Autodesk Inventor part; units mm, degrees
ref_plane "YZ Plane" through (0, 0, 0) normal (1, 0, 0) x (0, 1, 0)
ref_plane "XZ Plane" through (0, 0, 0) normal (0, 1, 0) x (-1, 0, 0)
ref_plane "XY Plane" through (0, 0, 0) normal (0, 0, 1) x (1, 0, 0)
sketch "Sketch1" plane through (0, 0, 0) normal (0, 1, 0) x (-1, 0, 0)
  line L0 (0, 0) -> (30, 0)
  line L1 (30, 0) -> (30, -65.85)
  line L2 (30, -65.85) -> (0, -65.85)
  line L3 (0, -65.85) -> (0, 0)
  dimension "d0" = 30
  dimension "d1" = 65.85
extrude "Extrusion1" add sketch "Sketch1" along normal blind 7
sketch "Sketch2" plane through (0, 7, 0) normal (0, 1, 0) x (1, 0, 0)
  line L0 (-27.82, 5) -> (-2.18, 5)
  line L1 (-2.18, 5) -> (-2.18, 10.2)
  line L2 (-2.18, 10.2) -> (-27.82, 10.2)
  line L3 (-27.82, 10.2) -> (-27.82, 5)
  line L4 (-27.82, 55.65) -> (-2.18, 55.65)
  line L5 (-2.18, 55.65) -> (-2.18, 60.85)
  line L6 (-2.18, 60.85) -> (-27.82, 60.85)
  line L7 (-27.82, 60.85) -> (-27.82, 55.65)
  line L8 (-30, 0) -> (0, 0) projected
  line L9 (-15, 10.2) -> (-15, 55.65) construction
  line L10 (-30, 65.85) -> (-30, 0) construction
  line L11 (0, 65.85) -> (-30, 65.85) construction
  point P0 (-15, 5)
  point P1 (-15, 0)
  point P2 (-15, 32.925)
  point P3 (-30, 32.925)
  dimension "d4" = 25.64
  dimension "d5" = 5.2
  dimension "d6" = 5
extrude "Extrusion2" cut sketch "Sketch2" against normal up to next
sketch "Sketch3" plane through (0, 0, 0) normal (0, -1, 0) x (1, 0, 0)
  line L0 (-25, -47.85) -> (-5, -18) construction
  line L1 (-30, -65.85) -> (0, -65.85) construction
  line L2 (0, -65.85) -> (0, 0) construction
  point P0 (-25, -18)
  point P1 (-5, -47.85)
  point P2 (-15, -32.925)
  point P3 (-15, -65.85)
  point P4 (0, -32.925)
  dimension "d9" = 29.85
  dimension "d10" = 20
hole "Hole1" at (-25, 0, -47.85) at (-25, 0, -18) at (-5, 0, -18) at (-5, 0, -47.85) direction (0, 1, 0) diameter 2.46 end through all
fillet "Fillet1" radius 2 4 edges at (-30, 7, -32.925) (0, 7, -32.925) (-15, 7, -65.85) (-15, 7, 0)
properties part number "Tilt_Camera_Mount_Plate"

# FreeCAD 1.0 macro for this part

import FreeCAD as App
import Part
import Sketcher

V = App.Vector
Q = App.Units.Quantity


def edges_at(feature, points):
    """Names of the edges that pass closest to the given points."""
    edges = feature.Shape.Edges
    near = lambda p: min(range(len(edges)), key=lambda i: edges[i].distToShape(Part.Vertex(*p))[0])
    return sorted({f"Edge{near(p) + 1}" for p in points})

doc = App.newDocument("Part")
params = doc.addObject("Spreadsheet::Sheet", "Params")
for row, (alias, value) in enumerate([
    ("sketch1_width", "30 mm"),
    ("sketch1_height", "65.85 mm"),
    ("pad1_length", "7 mm"),
    ("sketch2_height", "5.2 mm"),
    ("sketch2_width", "25.64 mm"),
    ("sketch3_diameter", "2.46 mm"),
    ("hole_diameter", "2.46 mm"),
    ("fillet_radius", "2 mm"),
], start=1):
    params.set(f"A{row}", alias)
    params.set(f"B{row}", "=" + value)
    params.setAlias(f"B{row}", alias)

body = doc.addObject("PartDesign::Body", "Body")

# Sketch on XZ plane
sketch1 = body.newObject("Sketcher::SketchObject", "Sketch")
sketch1.AttachmentSupport = (doc.getObject("XZ_Plane"), [""])
sketch1.MapMode = "FlatFace"
sketch1.addGeometry(Part.LineSegment(V(-30, 0, 0), V(0, 0, 0)), False)
sketch1.addGeometry(Part.LineSegment(V(0, 0, 0), V(0, -66, 0)), False)
sketch1.addGeometry(Part.LineSegment(V(0, -66, 0), V(-30, -66, 0)), False)
sketch1.addGeometry(Part.LineSegment(V(-30, -66, 0), V(-30, 0, 0)), False)
sketch1.addConstraint(Sketcher.Constraint("Coincident", 0, 2, 1, 1))
sketch1.addConstraint(Sketcher.Constraint("Coincident", 1, 2, 2, 1))
sketch1.addConstraint(Sketcher.Constraint("Coincident", 2, 2, 3, 1))
sketch1.addConstraint(Sketcher.Constraint("Coincident", 3, 2, 0, 1))
sketch1.addConstraint(Sketcher.Constraint("Horizontal", 0))
sketch1.addConstraint(Sketcher.Constraint("Vertical", 1))
sketch1.addConstraint(Sketcher.Constraint("Horizontal", 2))
sketch1.addConstraint(Sketcher.Constraint("Vertical", 3))
sketch1.addConstraint(Sketcher.Constraint("Coincident", 0, 2, -1, 1))
sketch1.addConstraint(Sketcher.Constraint("DistanceX", 0, 1, 0, 2, Q("30 mm")))
sketch1.addConstraint(Sketcher.Constraint("DistanceY", 1, 2, 1, 1, Q("65.85 mm")))
sketch1.setExpression("Constraints[9]", "Params.sketch1_width")
sketch1.setExpression("Constraints[10]", "Params.sketch1_height")
pad1 = body.newObject("PartDesign::Pad", "Pad")
pad1.Profile = sketch1
pad1.setExpression("Length", "Params.pad1_length")
pad1.Reversed = True

# Sketch on XZ plane
sketch2 = body.newObject("Sketcher::SketchObject", "Sketch001")
sketch2.AttachmentSupport = (doc.getObject("XZ_Plane"), [""])
sketch2.MapMode = "FlatFace"
sketch2.AttachmentOffset = App.Placement(V(0, 0, -7), App.Rotation())
sketch2.addGeometry(Part.LineSegment(V(-28, -10, 0), V(-28, -5, 0)), False)
sketch2.addGeometry(Part.LineSegment(V(-28, -5, 0), V(-2, -5, 0)), False)
sketch2.addGeometry(Part.LineSegment(V(-2, -5, 0), V(-2, -10, 0)), False)
sketch2.addGeometry(Part.LineSegment(V(-2, -10, 0), V(-28, -10, 0)), False)
sketch2.addGeometry(Part.LineSegment(V(-28, -61, 0), V(-28, -56, 0)), False)
sketch2.addGeometry(Part.LineSegment(V(-28, -56, 0), V(-2, -56, 0)), False)
sketch2.addGeometry(Part.LineSegment(V(-2, -56, 0), V(-2, -61, 0)), False)
sketch2.addGeometry(Part.LineSegment(V(-2, -61, 0), V(-28, -61, 0)), False)
sketch2.addConstraint(Sketcher.Constraint("Coincident", 0, 2, 1, 1))
sketch2.addConstraint(Sketcher.Constraint("Coincident", 1, 2, 2, 1))
sketch2.addConstraint(Sketcher.Constraint("Coincident", 2, 2, 3, 1))
sketch2.addConstraint(Sketcher.Constraint("Coincident", 3, 2, 0, 1))
sketch2.addConstraint(Sketcher.Constraint("Coincident", 4, 2, 5, 1))
sketch2.addConstraint(Sketcher.Constraint("Coincident", 5, 2, 6, 1))
sketch2.addConstraint(Sketcher.Constraint("Coincident", 6, 2, 7, 1))
sketch2.addConstraint(Sketcher.Constraint("Coincident", 7, 2, 4, 1))
sketch2.addConstraint(Sketcher.Constraint("Vertical", 0))
sketch2.addConstraint(Sketcher.Constraint("Horizontal", 1))
sketch2.addConstraint(Sketcher.Constraint("Vertical", 2))
sketch2.addConstraint(Sketcher.Constraint("Horizontal", 3))
sketch2.addConstraint(Sketcher.Constraint("Vertical", 4))
sketch2.addConstraint(Sketcher.Constraint("Horizontal", 5))
sketch2.addConstraint(Sketcher.Constraint("Vertical", 6))
sketch2.addConstraint(Sketcher.Constraint("Horizontal", 7))
sketch2.addConstraint(Sketcher.Constraint("Vertical", 3, 2, 4, 2))
sketch2.addConstraint(Sketcher.Constraint("Vertical", 2, 2, 5, 2))
sketch2.addConstraint(Sketcher.Constraint("Equal", 2, 4))
sketch2.addConstraint(Sketcher.Constraint("DistanceY", 0, 1, 0, 2, Q("5.2 mm")))
sketch2.addConstraint(Sketcher.Constraint("DistanceY", 0, 2, -1, 1, Q("5 mm")))
sketch2.addConstraint(Sketcher.Constraint("DistanceX", 1, 1, 1, 2, Q("25.64 mm")))
sketch2.addConstraint(Sketcher.Constraint("DistanceX", 0, 2, -1, 1, Q("27.82 mm")))
sketch2.addConstraint(Sketcher.Constraint("DistanceY", 4, 2, -1, 1, Q("55.65 mm")))
sketch2.setExpression("Constraints[19]", "Params.sketch2_height")
sketch2.setExpression("Constraints[21]", "Params.sketch2_width")
pocket1 = body.newObject("PartDesign::Pocket", "Pocket")
pocket1.Profile = sketch2
pocket1.Type = "UpToFirst"
pocket1.Reversed = True

# Sketch on XZ plane
sketch3 = body.newObject("Sketcher::SketchObject", "Sketch002")
sketch3.AttachmentSupport = (doc.getObject("XZ_Plane"), [""])
sketch3.MapMode = "FlatFace"
sketch3.addGeometry(Part.Circle(V(-25, -47.9, 0), V(0, 0, 1), 1.2), False)
sketch3.addGeometry(Part.Circle(V(-25, -18, 0), V(0, 0, 1), 1.2), False)
sketch3.addGeometry(Part.Circle(V(-5, -18, 0), V(0, 0, 1), 1.2), False)
sketch3.addGeometry(Part.Circle(V(-5, -47.9, 0), V(0, 0, 1), 1.2), False)
sketch3.addConstraint(Sketcher.Constraint("Equal", 0, 1))
sketch3.addConstraint(Sketcher.Constraint("Equal", 1, 2))
sketch3.addConstraint(Sketcher.Constraint("Equal", 2, 3))
sketch3.addConstraint(Sketcher.Constraint("Horizontal", 1, 3, 2, 3))
sketch3.addConstraint(Sketcher.Constraint("Horizontal", 0, 3, 3, 3))
sketch3.addConstraint(Sketcher.Constraint("Vertical", 0, 3, 1, 3))
sketch3.addConstraint(Sketcher.Constraint("Vertical", 2, 3, 3, 3))
sketch3.addConstraint(Sketcher.Constraint("Diameter", 0, Q("2.46 mm")))
sketch3.addConstraint(Sketcher.Constraint("DistanceX", 0, 3, -1, 1, Q("25 mm")))
sketch3.addConstraint(Sketcher.Constraint("DistanceY", 1, 3, -1, 1, Q("18 mm")))
sketch3.addConstraint(Sketcher.Constraint("DistanceX", 2, 3, -1, 1, Q("5 mm")))
sketch3.addConstraint(Sketcher.Constraint("DistanceY", 0, 3, -1, 1, Q("47.85 mm")))
sketch3.setExpression("Constraints[7]", "Params.sketch3_diameter")
doc.recompute()
hole = body.newObject("PartDesign::Hole", "Hole")
hole.Profile = sketch3
hole.ThreadType = "None"
hole.setExpression("Diameter", "Params.hole_diameter")
hole.DepthType = "ThroughAll"
doc.recompute()

fillet = body.newObject("PartDesign::Fillet", "Fillet")
fillet.Base = (hole, edges_at(hole, [
    (-30, 7, -32.925),
    (0, 7, -32.925),
    (-15, 7, -65.85),
    (-15, 7, 0),
]))
fillet.setExpression("Radius", "Params.fillet_radius")

doc.recompute()
